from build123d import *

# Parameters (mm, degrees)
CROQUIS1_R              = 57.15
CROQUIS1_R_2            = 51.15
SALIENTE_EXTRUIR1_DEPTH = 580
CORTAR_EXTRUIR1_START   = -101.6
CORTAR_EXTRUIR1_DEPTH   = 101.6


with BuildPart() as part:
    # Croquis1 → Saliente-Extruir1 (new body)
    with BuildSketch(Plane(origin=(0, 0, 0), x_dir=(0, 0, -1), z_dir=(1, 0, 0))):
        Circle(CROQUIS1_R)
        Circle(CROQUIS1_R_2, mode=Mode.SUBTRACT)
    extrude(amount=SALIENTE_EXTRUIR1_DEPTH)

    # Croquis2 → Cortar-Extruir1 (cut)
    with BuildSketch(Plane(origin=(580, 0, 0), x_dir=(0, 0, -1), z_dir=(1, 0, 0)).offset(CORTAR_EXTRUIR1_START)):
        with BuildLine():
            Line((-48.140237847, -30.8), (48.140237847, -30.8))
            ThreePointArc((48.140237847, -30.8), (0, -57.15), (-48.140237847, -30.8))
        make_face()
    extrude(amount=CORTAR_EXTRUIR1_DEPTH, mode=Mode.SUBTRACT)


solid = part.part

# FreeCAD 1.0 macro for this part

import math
import FreeCAD as App
import Part
import Sketcher

V = App.Vector

doc = App.newDocument("Part")
body = doc.addObject("PartDesign::Body", "Body")

# Sketch on YZ plane
sketch1 = body.newObject("Sketcher::SketchObject", "Sketch")
sketch1.AttachmentSupport = (doc.getObject("YZ_Plane"), [""])
sketch1.MapMode = "FlatFace"
sketch1.addGeometry([
    Part.Circle(V(0, 0, 0), V(0, 0, 1), 57),
    Part.Circle(V(0, 0, 0), V(0, 0, 1), 51),
], False)
sketch1.addConstraint([
    Sketcher.Constraint("Coincident", 0, 3, -1, 1),
    Sketcher.Constraint("Coincident", 1, 3, -1, 1),
    Sketcher.Constraint("Diameter", 0, 114.3),
    Sketcher.Constraint("Diameter", 1, 102.3),
])
pad1 = body.newObject("PartDesign::Pad", "Pad")
pad1.Profile = sketch1
pad1.Length = 580

# Sketch on YZ plane
sketch2 = body.newObject("Sketcher::SketchObject", "Sketch001")
sketch2.AttachmentSupport = (doc.getObject("YZ_Plane"), [""])
sketch2.MapMode = "FlatFace"
sketch2.AttachmentOffset = App.Placement(V(0, 0, 478.4), App.Rotation())
sketch2.addGeometry([
    Part.LineSegment(V(-31, -48, 0), V(-31, 48, 0)),
    Part.ArcOfCircle(Part.Circle(V(0, 0, 0), V(0, 0, 1), 57), math.radians(123), math.radians(237)),
], False)
sketch2.addConstraint([
    Sketcher.Constraint("Coincident", 0, 1, 1, 2),
    Sketcher.Constraint("Coincident", 1, 1, 0, 2),
    Sketcher.Constraint("Vertical", 0),
    Sketcher.Constraint("Coincident", 1, 3, -1, 1),
    Sketcher.Constraint("Radius", 1, 57.15),
    Sketcher.Constraint("DistanceX", 0, 1, -1, 1, 30.8),
])
pocket1 = body.newObject("PartDesign::Pocket", "Pocket")
pocket1.Profile = sketch2
pocket1.Length = 101.6
pocket1.Reversed = True

doc.recompute()
